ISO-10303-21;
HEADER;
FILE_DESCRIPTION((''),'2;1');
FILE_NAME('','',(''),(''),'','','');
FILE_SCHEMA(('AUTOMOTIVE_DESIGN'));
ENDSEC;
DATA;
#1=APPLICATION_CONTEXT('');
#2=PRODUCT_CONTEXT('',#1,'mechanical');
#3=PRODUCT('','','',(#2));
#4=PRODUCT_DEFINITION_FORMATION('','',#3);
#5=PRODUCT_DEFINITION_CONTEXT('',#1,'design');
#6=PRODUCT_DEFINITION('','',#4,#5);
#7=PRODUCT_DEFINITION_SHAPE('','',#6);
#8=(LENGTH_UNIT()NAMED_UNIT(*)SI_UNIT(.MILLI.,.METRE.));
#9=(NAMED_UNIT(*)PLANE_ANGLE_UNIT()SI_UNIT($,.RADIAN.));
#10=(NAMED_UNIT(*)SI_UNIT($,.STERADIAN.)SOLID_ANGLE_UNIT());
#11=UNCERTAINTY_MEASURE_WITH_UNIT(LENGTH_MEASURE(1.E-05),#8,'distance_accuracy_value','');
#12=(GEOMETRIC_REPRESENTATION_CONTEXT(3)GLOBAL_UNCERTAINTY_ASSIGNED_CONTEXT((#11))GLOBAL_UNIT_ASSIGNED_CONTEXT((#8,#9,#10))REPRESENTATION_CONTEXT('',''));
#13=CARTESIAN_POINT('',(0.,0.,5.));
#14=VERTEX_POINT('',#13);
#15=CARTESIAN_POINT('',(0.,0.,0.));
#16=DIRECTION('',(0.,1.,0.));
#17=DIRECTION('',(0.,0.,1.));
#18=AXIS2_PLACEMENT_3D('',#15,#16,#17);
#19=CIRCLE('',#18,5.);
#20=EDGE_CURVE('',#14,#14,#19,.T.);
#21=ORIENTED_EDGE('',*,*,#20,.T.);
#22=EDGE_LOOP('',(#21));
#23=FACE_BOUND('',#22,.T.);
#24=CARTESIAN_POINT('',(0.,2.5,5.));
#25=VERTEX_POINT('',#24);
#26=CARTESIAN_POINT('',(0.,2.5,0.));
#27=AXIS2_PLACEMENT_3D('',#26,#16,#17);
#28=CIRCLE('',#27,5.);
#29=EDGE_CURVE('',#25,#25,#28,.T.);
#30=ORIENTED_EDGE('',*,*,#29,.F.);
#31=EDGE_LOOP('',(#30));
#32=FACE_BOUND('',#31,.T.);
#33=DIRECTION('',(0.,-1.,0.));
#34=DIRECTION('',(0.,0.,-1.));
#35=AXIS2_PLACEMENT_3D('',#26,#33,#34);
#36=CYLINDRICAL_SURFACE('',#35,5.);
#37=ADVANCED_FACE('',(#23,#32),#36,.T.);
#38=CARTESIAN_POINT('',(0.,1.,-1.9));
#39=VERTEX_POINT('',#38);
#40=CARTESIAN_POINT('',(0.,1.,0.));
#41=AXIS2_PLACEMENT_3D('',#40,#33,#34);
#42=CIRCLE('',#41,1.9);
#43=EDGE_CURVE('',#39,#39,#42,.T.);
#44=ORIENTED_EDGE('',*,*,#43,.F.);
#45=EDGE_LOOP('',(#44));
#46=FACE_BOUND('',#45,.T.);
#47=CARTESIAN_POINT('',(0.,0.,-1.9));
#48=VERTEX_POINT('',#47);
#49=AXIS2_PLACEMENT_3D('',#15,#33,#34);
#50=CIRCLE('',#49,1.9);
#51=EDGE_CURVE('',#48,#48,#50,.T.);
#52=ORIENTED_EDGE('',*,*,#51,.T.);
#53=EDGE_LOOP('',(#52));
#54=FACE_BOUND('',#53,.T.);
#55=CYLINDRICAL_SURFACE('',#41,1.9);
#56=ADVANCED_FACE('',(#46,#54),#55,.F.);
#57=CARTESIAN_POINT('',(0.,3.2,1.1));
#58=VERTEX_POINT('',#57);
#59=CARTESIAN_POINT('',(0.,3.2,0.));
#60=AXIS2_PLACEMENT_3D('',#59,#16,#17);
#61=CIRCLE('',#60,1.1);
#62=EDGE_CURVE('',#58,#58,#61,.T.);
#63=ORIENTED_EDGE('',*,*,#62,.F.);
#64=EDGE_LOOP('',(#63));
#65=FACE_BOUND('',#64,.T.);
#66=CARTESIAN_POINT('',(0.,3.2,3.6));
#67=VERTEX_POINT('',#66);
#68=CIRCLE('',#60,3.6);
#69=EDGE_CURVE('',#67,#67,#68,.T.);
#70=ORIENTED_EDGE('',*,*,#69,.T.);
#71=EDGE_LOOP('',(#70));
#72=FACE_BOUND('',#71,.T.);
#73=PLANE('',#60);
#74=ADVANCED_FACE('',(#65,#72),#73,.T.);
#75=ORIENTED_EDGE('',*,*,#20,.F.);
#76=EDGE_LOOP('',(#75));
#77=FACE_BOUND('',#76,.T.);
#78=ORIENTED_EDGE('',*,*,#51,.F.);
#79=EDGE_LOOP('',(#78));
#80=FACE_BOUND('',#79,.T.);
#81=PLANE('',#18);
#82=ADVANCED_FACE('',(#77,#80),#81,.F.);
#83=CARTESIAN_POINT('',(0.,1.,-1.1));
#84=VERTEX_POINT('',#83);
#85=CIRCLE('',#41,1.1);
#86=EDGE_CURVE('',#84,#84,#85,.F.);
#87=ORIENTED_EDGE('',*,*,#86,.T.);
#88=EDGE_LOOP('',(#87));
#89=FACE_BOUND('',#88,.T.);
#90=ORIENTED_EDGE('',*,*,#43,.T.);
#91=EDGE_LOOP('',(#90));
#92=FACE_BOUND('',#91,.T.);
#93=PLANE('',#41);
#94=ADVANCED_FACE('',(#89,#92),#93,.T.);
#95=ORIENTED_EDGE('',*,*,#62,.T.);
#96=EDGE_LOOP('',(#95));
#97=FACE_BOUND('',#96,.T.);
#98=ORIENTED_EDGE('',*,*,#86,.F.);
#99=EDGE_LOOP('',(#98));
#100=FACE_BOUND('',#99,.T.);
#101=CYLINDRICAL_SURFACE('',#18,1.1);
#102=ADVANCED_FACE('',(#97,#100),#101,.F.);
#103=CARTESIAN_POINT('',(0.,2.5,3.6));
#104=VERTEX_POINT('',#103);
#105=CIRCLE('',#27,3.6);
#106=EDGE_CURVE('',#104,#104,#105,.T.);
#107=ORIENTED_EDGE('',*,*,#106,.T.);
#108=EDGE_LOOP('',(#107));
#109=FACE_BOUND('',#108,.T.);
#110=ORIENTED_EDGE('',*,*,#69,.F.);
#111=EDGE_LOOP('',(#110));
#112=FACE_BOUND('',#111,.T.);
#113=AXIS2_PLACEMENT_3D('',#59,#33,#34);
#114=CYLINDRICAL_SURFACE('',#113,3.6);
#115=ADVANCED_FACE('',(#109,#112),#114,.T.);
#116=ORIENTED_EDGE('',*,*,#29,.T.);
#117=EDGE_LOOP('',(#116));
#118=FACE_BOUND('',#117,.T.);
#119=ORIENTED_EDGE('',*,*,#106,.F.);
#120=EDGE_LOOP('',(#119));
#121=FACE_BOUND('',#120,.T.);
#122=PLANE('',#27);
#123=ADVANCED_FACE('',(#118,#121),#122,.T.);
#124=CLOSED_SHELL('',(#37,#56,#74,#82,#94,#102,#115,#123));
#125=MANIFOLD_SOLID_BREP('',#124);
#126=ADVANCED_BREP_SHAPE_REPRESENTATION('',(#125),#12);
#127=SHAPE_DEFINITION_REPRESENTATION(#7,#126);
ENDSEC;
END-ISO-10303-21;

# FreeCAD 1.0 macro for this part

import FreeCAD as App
import Part
import Sketcher

V = App.Vector
Q = App.Units.Quantity

doc = App.newDocument("Part")
body = doc.addObject("PartDesign::Body", "Body")

sketch1 = body.newObject("Sketcher::SketchObject", "Sketch")
sketch1.AttachmentSupport = (doc.getObject("XZ_Plane"), [""])
sketch1.MapMode = "FlatFace"
sketch1.addGeometry(Part.Circle(V(0, 0, 0), V(0, 0, 1), 5), False)
sketch1.addConstraint(Sketcher.Constraint("Coincident", 0, 3, -1, 1))
sketch1.addConstraint(Sketcher.Constraint("Diameter", 0, Q("10 mm")))
pad1 = body.newObject("PartDesign::Pad", "Pad")
pad1.Profile = sketch1
pad1.Length = 2.5
pad1.Reversed = True

sketch2 = body.newObject("Sketcher::SketchObject", "Sketch001")
sketch2.AttachmentSupport = (doc.getObject("XZ_Plane"), [""])
sketch2.MapMode = "FlatFace"
sketch2.AttachmentOffset = App.Placement(V(0, 0, -2.5), App.Rotation())
sketch2.addGeometry(Part.Circle(V(0, 0, 0), V(0, 0, 1), 3.6), False)
sketch2.addConstraint(Sketcher.Constraint("Coincident", 0, 3, -1, 1))
sketch2.addConstraint(Sketcher.Constraint("Diameter", 0, Q("7.2 mm")))
pad2 = body.newObject("PartDesign::Pad", "Pad001")
pad2.Profile = sketch2
pad2.Length = 0.7
pad2.Reversed = True

sketch3 = body.newObject("Sketcher::SketchObject", "Sketch002")
sketch3.AttachmentSupport = (doc.getObject("XZ_Plane"), [""])
sketch3.MapMode = "FlatFace"
sketch3.AttachmentOffset = App.Placement(V(0, 0, -3.2), App.Rotation())
sketch3.addGeometry(Part.Circle(V(0, 0, 0), V(0, 0, 1), 1.1), False)
sketch3.addConstraint(Sketcher.Constraint("Coincident", 0, 3, -1, 1))
sketch3.addConstraint(Sketcher.Constraint("Diameter", 0, Q("2.2 mm")))
pocket1 = body.newObject("PartDesign::Pocket", "Pocket")
pocket1.Profile = sketch3
pocket1.Type = "ThroughAll"
pocket1.Reversed = True

sketch4 = body.newObject("Sketcher::SketchObject", "Sketch003")
sketch4.AttachmentSupport = (doc.getObject("XZ_Plane"), [""])
sketch4.MapMode = "FlatFace"
sketch4.addGeometry(Part.Circle(V(0, 0, 0), V(0, 0, 1), 1.9), False)
sketch4.addConstraint(Sketcher.Constraint("Coincident", 0, 3, -1, 1))
sketch4.addConstraint(Sketcher.Constraint("Diameter", 0, Q("3.8 mm")))
pocket2 = body.newObject("PartDesign::Pocket", "Pocket001")
pocket2.Profile = sketch4
pocket2.Length = 1

doc.recompute()
